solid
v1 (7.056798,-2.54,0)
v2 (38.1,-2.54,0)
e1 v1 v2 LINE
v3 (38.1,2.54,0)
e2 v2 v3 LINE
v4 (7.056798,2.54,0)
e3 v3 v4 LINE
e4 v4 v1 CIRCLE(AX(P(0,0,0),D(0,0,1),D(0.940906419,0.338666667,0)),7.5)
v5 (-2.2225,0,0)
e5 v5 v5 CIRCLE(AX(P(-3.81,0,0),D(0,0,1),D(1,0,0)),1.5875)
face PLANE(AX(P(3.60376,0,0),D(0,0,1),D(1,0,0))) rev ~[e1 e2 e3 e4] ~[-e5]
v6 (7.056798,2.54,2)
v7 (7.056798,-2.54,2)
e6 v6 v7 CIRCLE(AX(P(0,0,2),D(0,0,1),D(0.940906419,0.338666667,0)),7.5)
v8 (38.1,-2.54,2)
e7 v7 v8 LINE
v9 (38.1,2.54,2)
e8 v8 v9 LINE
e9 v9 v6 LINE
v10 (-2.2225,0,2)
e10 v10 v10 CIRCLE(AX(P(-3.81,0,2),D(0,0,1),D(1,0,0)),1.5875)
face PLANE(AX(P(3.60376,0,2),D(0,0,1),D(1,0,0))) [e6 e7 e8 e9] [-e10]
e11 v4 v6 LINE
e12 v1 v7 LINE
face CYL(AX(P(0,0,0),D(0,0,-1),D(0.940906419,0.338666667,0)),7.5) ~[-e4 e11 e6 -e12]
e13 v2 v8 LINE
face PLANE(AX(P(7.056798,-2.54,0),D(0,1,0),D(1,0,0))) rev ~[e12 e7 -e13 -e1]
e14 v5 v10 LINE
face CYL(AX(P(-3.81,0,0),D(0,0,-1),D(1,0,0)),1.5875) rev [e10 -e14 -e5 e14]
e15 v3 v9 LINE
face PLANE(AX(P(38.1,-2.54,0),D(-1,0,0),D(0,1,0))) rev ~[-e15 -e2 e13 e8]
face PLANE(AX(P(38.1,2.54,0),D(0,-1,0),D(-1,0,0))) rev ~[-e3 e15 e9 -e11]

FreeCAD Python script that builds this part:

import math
import FreeCAD as App
import Part
import Sketcher

V = App.Vector

doc = App.newDocument("Part")
body = doc.addObject("PartDesign::Body", "Body")

# Sketch on XY plane
sketch1 = body.newObject("Sketcher::SketchObject", "Sketch")
sketch1.AttachmentSupport = (doc.getObject("XY_Plane"), [""])
sketch1.MapMode = "FlatFace"
sketch1.addGeometry([
    Part.LineSegment(V(7.1, -2.5, 0), V(38.1, -2.5, 0)),  # 0
    Part.LineSegment(V(38.1, -2.5, 0), V(38.1, 2.5, 0)),  # 1
    Part.LineSegment(V(38.1, 2.5, 0), V(7.1, 2.5, 0)),  # 2
    Part.ArcOfCircle(Part.Circle(V(0, 0, 0), V(0, 0, 1), 7.5), math.radians(20), math.radians(340)),  # 3
    Part.Circle(V(-3.8, 0, 0), V(0, 0, 1), 1.6),  # 4
], False)
sketch1.addConstraint([
    Sketcher.Constraint("Coincident", 0, 2, 1, 1),
    Sketcher.Constraint("Coincident", 1, 2, 2, 1),
    Sketcher.Constraint("Coincident", 2, 2, 3, 1),
    Sketcher.Constraint("Coincident", 3, 2, 0, 1),
    Sketcher.Constraint("Horizontal", 0),
    Sketcher.Constraint("Vertical", 1),
    Sketcher.Constraint("Horizontal", 2),
    Sketcher.Constraint("Coincident", 3, 3, -1, 1),
    Sketcher.Constraint("PointOnObject", 4, 3, -1),
    Sketcher.Constraint("Vertical", 2, 2, 3, 2),
    Sketcher.Constraint("Radius", 3, 7.5),
    Sketcher.Constraint("Diameter", 4, 3.175),
    Sketcher.Constraint("DistanceY", 1, 1, 1, 2, 5.08),
    Sketcher.Constraint("DistanceX", -1, 1, 0, 2, 38.1),
    Sketcher.Constraint("DistanceX", 4, 3, -1, 1, 3.81),
])
pad1 = body.newObject("PartDesign::Pad", "Pad")
pad1.Profile = sketch1
pad1.Length = 2

doc.recompute()
